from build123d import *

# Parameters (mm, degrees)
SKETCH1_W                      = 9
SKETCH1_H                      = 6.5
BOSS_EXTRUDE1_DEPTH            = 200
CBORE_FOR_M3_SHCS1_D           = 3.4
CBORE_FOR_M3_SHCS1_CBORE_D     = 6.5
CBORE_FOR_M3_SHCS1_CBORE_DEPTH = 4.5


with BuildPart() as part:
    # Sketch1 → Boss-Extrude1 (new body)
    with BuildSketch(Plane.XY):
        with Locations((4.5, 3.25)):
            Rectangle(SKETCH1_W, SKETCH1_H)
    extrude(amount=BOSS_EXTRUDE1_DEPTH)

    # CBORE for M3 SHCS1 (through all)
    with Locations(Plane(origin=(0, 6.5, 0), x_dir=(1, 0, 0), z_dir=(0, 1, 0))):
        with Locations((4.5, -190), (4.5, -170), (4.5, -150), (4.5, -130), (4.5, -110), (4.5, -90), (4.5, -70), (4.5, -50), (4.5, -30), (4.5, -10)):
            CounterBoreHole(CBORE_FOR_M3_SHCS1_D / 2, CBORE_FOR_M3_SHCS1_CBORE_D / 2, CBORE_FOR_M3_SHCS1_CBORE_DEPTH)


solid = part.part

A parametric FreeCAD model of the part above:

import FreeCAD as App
import Part
import Sketcher


def add_polygon(sketch, points):
    """Adds a closed chain of lines whose ends are joined by coincident constraints."""
    first, n = sketch.GeometryCount, len(points)
    for a, b in zip(points, points[1:] + points[:1]):
        sketch.addGeometry(Part.LineSegment(App.Vector(*a, 0), App.Vector(*b, 0)), False)
    for i in range(n):
        sketch.addConstraint(Sketcher.Constraint("Coincident", first + i, 2, first + (i + 1) % n, 1))

doc = App.newDocument("Part")
params = doc.addObject("Spreadsheet::Sheet", "Params")
for row, (alias, value) in enumerate([
    ("sketch1_width", "9 mm"),
    ("sketch1_height", "6.5 mm"),
    ("pad1_length", "200 mm"),
    ("sketch2_diameter", "3.4 mm"),
    ("hole_diameter", "3.4 mm"),
    ("hole_cbore_diameter", "6.5 mm"),
    ("hole_cbore_depth", "4.5 mm"),
], start=1):
    params.set(f"A{row}", alias)
    params.set(f"B{row}", "=" + value)
    params.setAlias(f"B{row}", alias)

body = doc.addObject("PartDesign::Body", "Body")

sketch1 = body.newObject("Sketcher::SketchObject", "Sketch")
sketch1.AttachmentSupport = (doc.getObject("XY_Plane"), [""])
sketch1.MapMode = "FlatFace"
add_polygon(sketch1, [(0, 6), (0, 0), (9, 0), (9, 6)])
sketch1.addConstraint([
    Sketcher.Constraint("Vertical", 0),
    Sketcher.Constraint("Horizontal", 1),
    Sketcher.Constraint("Vertical", 2),
    Sketcher.Constraint("Horizontal", 3),
    Sketcher.Constraint("Coincident", 0, 2, -1, 1),
    Sketcher.Constraint("DistanceX", 1, 1, 1, 2, 9.0),
    Sketcher.Constraint("DistanceY", 0, 2, 0, 1, 6.5),
])
sketch1.setExpression("Constraints[9]", "Params.sketch1_width")
sketch1.setExpression("Constraints[10]", "Params.sketch1_height")
pad1 = body.newObject("PartDesign::Pad", "Pad")
pad1.Profile = sketch1
pad1.setExpression("Length", "Params.pad1_length")

sketch2 = body.newObject("Sketcher::SketchObject", "Sketch001")
sketch2.AttachmentSupport = (doc.getObject("XZ_Plane"), [""])
sketch2.MapMode = "FlatFace"
sketch2.AttachmentOffset = App.Placement(App.Vector(0, 0, -6.5), App.Rotation())
sketch2.addGeometry([
    Part.Circle(App.Vector(4.5, 190, 0), App.Vector(0, 0, 1), 1.7),
    Part.Circle(App.Vector(4.5, 170, 0), App.Vector(0, 0, 1), 1.7),
    Part.Circle(App.Vector(4.5, 150, 0), App.Vector(0, 0, 1), 1.7),
    Part.Circle(App.Vector(4.5, 130, 0), App.Vector(0, 0, 1), 1.7),
    Part.Circle(App.Vector(4.5, 110, 0), App.Vector(0, 0, 1), 1.7),
    Part.Circle(App.Vector(4.5, 90, 0), App.Vector(0, 0, 1), 1.7),
    Part.Circle(App.Vector(4.5, 70, 0), App.Vector(0, 0, 1), 1.7),
    Part.Circle(App.Vector(4.5, 50, 0), App.Vector(0, 0, 1), 1.7),
    Part.Circle(App.Vector(4.5, 30, 0), App.Vector(0, 0, 1), 1.7),
    Part.Circle(App.Vector(4.5, 10, 0), App.Vector(0, 0, 1), 1.7),
], False)
sketch2.addConstraint([
    Sketcher.Constraint("Equal", 0, 1),
    Sketcher.Constraint("Equal", 1, 2),
    Sketcher.Constraint("Equal", 2, 3),
    Sketcher.Constraint("Equal", 3, 4),
    Sketcher.Constraint("Equal", 4, 5),
    Sketcher.Constraint("Equal", 5, 6),
    Sketcher.Constraint("Equal", 6, 7),
    Sketcher.Constraint("Equal", 7, 8),
    Sketcher.Constraint("Equal", 8, 9),
    Sketcher.Constraint("Vertical", 0, 3, 1, 3),
    Sketcher.Constraint("Vertical", 1, 3, 2, 3),
    Sketcher.Constraint("Vertical", 2, 3, 3, 3),
    Sketcher.Constraint("Vertical", 3, 3, 4, 3),
    Sketcher.Constraint("Vertical", 4, 3, 5, 3),
    Sketcher.Constraint("Vertical", 5, 3, 6, 3),
    Sketcher.Constraint("Vertical", 6, 3, 7, 3),
    Sketcher.Constraint("Vertical", 7, 3, 8, 3),
    Sketcher.Constraint("Vertical", 8, 3, 9, 3),
    Sketcher.Constraint("Diameter", 0, 3.4),
    Sketcher.Constraint("DistanceY", -1, 1, 0, 3, 190.0),
    Sketcher.Constraint("DistanceY", -1, 1, 1, 3, 170.0),
    Sketcher.Constraint("DistanceY", -1, 1, 2, 3, 150.0),
    Sketcher.Constraint("DistanceY", -1, 1, 3, 3, 130.0),
    Sketcher.Constraint("DistanceY", -1, 1, 4, 3, 110.0),
    Sketcher.Constraint("DistanceY", -1, 1, 5, 3, 90.0),
    Sketcher.Constraint("DistanceY", -1, 1, 6, 3, 70.0),
    Sketcher.Constraint("DistanceY", -1, 1, 7, 3, 50.0),
    Sketcher.Constraint("DistanceY", -1, 1, 8, 3, 30.0),
    Sketcher.Constraint("DistanceY", -1, 1, 9, 3, 10.0),
    Sketcher.Constraint("DistanceX", -1, 1, 0, 3, 4.5),
])
sketch2.setExpression("Constraints[18]", "Params.sketch2_diameter")
doc.recompute()
hole = body.newObject("PartDesign::Hole", "Hole")
hole.Profile = sketch2
hole.ThreadType = "None"
hole.setExpression("Diameter", "Params.hole_diameter")
hole.DepthType = "ThroughAll"
hole.HoleCutType = "Counterbore"
hole.setExpression("HoleCutDiameter", "Params.hole_cbore_diameter")
hole.setExpression("HoleCutDepth", "Params.hole_cbore_depth")
hole.Reversed = True

doc.recompute()
